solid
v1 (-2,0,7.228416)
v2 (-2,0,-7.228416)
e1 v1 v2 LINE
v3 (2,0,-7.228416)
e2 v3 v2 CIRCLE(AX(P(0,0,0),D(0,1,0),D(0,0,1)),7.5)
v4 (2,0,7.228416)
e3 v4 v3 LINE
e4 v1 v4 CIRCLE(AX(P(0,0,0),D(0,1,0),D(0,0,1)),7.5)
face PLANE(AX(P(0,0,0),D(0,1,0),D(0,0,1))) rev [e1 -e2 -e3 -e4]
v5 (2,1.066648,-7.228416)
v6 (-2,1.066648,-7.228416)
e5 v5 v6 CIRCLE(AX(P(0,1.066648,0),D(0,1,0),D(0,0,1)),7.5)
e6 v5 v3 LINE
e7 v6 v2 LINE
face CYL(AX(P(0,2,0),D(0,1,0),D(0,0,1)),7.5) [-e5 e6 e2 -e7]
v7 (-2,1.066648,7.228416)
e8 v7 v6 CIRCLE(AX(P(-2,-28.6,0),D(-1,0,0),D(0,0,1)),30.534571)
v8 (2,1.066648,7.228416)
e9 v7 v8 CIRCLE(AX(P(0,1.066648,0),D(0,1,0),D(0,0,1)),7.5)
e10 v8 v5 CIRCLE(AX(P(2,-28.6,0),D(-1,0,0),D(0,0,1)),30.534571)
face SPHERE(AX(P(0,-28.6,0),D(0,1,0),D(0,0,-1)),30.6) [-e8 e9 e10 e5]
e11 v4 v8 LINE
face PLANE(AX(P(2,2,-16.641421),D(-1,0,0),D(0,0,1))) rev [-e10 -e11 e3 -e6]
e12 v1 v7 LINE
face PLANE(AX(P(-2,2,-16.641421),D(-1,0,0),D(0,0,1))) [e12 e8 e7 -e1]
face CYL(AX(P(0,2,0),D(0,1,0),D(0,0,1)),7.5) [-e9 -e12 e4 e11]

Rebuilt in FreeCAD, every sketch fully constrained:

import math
import FreeCAD as App
import Part
import Sketcher
from FreeCAD import Vector

doc = App.newDocument("Part")
body = doc.addObject("PartDesign::Body", "Body")

# Sketch on YZ plane
sketch1 = doc.addObject("Sketcher::SketchObject", "Sketch")
body.addObject(sketch1)
sketch1.AttachmentSupport = (doc.YZ_Plane, [""])
sketch1.MapMode = "FlatFace"
sketch1.addGeometry(Part.LineSegment(Vector(0, 0, 0), Vector(0, -7.5, 0)), False)
sketch1.addGeometry(Part.LineSegment(Vector(0, -7.5, 0), Vector(1.1, -7.5, 0)), False)
sketch1.addGeometry(Part.ArcOfCircle(Part.Circle(Vector(-28.6, 0, 0), Vector(0, 0, 1), 30.6), math.radians(-14.19), math.radians(0)), False)
sketch1.addGeometry(Part.LineSegment(Vector(2, 0, 0), Vector(0, 0, 0)), False)
sketch1.addConstraint(Sketcher.Constraint("Coincident", 0, 2, 1, 1))
sketch1.addConstraint(Sketcher.Constraint("Coincident", 1, 2, 2, 1))
sketch1.addConstraint(Sketcher.Constraint("Coincident", 2, 2, 3, 1))
sketch1.addConstraint(Sketcher.Constraint("Coincident", 3, 2, 0, 1))
sketch1.addConstraint(Sketcher.Constraint("Vertical", 0))
sketch1.addConstraint(Sketcher.Constraint("Horizontal", 1))
sketch1.addConstraint(Sketcher.Constraint("Horizontal", 3))
sketch1.addConstraint(Sketcher.Constraint("Coincident", 3, 2, -1, 1))
sketch1.addConstraint(Sketcher.Constraint("PointOnObject", 2, 3, -1))
sketch1.addConstraint(Sketcher.Constraint("Radius", 2, 30.6))
sketch1.addConstraint(Sketcher.Constraint("DistanceX", 3, 2, 3, 1, 2.0))
sketch1.addConstraint(Sketcher.Constraint("DistanceY", 0, 2, 0, 1, 7.5))
revolution = doc.addObject("PartDesign::Revolution", "Revolution")
body.addObject(revolution)
revolution.Profile = sketch1
revolution.ReferenceAxis = (sketch1, ["H_Axis"])
revolution.Angle = 360

# Sketch on XZ plane
sketch2 = doc.addObject("Sketcher::SketchObject", "Sketch001")
body.addObject(sketch2)
sketch2.AttachmentSupport = (doc.XZ_Plane, [""])
sketch2.MapMode = "FlatFace"
sketch2.addGeometry(Part.LineSegment(Vector(-2, -7, 0), Vector(-2, 7, 0)), False)
sketch2.addGeometry(Part.ArcOfCircle(Part.Circle(Vector(0, 0, 0), Vector(0, 0, 1), 7), math.radians(105), math.radians(255)), False)
sketch2.addGeometry(Part.ArcOfCircle(Part.Circle(Vector(0, 0, 0), Vector(0, 0, 1), 8), math.radians(0), math.radians(75)), False)
sketch2.addGeometry(Part.LineSegment(Vector(2, 7, 0), Vector(2, -7, 0)), False)
sketch2.addGeometry(Part.ArcOfCircle(Part.Circle(Vector(0, 0, 0), Vector(0, 0, 1), 8), math.radians(-75), math.radians(0)), False)
sketch2.addConstraint(Sketcher.Constraint("Coincident", 0, 1, 1, 2))
sketch2.addConstraint(Sketcher.Constraint("Coincident", 1, 1, 0, 2))
sketch2.addConstraint(Sketcher.Constraint("Coincident", 2, 2, 3, 1))
sketch2.addConstraint(Sketcher.Constraint("Coincident", 3, 2, 4, 1))
sketch2.addConstraint(Sketcher.Constraint("Tangent", 4, 2, 2, 1))
sketch2.addConstraint(Sketcher.Constraint("Vertical", 0))
sketch2.addConstraint(Sketcher.Constraint("Vertical", 3))
sketch2.addConstraint(Sketcher.Constraint("Coincident", 1, 3, -1, 1))
sketch2.addConstraint(Sketcher.Constraint("Coincident", 2, 3, -1, 1))
sketch2.addConstraint(Sketcher.Constraint("Equal", 1, 2))
sketch2.addConstraint(Sketcher.Constraint("Equal", 2, 4))
sketch2.addConstraint(Sketcher.Constraint("PointOnObject", 4, 2, -1))
sketch2.addConstraint(Sketcher.Constraint("Horizontal", 1, 1, 2, 2))
sketch2.addConstraint(Sketcher.Constraint("Radius", 1, 7.5))
sketch2.addConstraint(Sketcher.Constraint("DistanceX", 0, 1, -1, 1, 2.0))
pocket1 = doc.addObject("PartDesign::Pocket", "Pocket")
body.addObject(pocket1)
pocket1.Profile = sketch2
pocket1.Type = "ThroughAll"

doc.recompute()
